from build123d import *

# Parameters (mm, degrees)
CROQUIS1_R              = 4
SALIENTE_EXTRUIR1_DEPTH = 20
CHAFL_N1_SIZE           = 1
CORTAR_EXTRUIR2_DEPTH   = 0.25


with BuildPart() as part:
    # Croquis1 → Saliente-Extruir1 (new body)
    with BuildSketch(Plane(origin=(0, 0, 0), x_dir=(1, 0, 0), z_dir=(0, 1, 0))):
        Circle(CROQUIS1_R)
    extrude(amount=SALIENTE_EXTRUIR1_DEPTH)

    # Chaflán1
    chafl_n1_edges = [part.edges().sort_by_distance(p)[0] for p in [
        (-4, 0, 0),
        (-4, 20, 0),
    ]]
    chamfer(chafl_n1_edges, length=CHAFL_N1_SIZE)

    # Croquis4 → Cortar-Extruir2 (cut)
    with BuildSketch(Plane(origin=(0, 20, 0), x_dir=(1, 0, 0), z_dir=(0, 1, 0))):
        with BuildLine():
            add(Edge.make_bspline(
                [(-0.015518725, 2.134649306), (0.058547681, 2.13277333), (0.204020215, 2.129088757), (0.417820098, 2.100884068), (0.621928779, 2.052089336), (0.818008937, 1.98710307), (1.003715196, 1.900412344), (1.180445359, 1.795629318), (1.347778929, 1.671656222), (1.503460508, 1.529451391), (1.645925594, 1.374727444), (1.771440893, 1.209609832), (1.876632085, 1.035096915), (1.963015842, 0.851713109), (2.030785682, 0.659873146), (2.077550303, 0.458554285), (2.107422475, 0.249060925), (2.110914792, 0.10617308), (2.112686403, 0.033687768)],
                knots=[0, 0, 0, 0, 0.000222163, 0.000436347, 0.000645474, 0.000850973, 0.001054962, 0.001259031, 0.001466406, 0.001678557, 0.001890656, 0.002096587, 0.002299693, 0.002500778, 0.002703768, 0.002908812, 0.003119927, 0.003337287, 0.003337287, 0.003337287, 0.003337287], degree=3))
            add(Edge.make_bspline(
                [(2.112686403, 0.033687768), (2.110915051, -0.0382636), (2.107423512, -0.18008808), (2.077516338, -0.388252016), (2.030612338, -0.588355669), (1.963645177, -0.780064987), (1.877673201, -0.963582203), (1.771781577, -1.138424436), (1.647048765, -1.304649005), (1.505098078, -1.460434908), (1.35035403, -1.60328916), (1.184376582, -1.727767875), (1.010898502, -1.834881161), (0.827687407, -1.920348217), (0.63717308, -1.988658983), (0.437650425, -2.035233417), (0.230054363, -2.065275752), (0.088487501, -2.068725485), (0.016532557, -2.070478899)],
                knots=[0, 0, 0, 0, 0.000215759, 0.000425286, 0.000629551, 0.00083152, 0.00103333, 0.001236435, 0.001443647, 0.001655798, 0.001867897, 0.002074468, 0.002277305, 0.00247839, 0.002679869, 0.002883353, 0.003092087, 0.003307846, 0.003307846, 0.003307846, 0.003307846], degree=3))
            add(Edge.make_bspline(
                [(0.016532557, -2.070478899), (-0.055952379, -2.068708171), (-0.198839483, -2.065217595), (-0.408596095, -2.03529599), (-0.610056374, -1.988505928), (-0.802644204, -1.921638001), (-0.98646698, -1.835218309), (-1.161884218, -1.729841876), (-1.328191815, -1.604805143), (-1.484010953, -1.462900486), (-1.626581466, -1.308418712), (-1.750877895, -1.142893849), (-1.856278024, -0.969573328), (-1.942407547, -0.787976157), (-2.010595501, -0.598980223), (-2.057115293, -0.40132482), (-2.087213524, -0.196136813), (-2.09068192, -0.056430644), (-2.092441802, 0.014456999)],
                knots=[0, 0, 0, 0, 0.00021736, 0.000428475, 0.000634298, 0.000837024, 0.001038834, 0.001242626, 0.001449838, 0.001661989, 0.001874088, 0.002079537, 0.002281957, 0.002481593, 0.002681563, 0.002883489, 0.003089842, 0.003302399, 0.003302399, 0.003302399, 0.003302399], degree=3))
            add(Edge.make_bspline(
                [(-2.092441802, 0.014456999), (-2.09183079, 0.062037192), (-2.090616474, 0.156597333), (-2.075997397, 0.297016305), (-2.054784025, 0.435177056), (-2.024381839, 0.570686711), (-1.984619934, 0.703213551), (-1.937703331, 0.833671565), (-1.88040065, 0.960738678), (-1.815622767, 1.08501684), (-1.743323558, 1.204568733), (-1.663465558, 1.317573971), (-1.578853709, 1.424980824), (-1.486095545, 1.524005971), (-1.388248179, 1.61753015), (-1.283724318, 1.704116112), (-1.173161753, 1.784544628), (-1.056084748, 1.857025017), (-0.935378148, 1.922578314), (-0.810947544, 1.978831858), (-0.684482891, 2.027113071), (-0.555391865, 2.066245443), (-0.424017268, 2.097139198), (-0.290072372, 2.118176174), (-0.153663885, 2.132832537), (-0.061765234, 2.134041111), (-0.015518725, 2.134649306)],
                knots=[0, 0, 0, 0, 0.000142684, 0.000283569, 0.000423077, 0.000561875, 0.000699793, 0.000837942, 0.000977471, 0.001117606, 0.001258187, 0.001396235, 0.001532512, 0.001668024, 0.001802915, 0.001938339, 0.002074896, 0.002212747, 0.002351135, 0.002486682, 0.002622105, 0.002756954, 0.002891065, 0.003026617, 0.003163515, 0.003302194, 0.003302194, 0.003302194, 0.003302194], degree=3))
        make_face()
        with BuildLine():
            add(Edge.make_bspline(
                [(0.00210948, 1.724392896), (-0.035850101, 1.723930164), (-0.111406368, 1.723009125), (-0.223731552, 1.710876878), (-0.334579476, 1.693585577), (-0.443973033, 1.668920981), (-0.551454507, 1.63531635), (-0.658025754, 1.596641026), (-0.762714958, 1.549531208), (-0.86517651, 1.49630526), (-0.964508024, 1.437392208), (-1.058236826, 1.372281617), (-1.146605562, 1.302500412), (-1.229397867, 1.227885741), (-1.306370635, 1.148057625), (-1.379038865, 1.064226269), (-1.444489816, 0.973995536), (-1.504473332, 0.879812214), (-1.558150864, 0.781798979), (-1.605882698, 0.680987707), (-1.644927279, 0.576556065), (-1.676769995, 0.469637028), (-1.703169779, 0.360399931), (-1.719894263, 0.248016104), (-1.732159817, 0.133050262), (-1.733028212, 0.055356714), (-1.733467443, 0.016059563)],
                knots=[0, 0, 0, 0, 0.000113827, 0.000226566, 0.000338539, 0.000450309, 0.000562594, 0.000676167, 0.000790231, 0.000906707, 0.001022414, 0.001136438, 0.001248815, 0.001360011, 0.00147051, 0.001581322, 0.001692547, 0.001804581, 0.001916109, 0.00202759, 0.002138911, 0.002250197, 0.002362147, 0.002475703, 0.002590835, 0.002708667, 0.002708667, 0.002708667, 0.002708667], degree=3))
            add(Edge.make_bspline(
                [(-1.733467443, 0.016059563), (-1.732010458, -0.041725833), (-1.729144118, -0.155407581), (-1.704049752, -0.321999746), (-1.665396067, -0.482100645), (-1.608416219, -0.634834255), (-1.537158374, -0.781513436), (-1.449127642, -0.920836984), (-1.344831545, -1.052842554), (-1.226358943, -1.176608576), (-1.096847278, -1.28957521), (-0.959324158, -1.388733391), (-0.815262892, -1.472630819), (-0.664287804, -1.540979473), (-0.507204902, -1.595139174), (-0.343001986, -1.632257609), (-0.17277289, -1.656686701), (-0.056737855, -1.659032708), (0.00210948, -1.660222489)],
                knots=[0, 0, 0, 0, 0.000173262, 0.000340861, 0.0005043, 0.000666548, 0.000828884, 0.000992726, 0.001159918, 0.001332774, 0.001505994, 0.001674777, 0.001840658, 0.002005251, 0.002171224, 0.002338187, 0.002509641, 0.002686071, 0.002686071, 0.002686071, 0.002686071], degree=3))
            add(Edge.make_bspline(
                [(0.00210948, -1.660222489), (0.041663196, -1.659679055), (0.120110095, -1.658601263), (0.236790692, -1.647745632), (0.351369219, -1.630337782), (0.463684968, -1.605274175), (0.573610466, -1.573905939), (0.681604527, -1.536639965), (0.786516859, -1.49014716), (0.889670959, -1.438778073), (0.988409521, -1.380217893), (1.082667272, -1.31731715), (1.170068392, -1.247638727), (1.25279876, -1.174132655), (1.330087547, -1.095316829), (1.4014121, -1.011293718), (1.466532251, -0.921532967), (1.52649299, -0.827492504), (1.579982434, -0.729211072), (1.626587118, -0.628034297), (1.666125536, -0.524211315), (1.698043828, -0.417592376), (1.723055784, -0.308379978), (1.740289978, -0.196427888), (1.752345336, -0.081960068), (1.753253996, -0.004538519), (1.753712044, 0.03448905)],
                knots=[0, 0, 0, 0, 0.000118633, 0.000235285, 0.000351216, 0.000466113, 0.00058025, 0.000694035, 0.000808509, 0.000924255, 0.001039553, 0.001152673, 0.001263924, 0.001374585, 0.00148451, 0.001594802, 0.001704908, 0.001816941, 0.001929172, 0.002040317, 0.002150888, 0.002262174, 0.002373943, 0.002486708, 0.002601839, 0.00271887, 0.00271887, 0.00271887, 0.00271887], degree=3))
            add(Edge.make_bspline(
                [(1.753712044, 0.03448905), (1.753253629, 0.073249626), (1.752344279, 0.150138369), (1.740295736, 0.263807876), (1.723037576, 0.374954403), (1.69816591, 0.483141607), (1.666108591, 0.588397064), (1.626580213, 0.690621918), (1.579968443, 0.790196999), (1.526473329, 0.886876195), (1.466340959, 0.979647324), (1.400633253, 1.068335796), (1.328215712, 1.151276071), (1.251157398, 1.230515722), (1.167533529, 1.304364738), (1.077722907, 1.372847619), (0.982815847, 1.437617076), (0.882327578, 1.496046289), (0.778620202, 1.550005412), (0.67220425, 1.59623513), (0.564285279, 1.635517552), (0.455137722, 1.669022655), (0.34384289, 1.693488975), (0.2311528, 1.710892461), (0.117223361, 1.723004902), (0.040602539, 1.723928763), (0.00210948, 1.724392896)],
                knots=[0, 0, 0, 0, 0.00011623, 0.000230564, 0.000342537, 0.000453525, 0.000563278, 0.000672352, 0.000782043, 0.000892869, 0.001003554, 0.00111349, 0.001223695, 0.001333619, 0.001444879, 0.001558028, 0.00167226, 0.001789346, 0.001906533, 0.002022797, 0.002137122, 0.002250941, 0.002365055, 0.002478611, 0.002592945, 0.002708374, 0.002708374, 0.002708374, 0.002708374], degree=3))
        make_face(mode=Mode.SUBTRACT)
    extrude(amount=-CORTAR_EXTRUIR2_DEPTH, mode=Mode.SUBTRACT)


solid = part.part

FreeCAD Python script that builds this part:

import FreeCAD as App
import Part
import Sketcher

V = App.Vector


def edges_at(feature, points):
    """Names of the edges that pass closest to the given points."""
    edges = feature.Shape.Edges
    near = lambda p: min(range(len(edges)), key=lambda i: edges[i].distToShape(Part.Vertex(*p))[0])
    return sorted({f"Edge{near(p) + 1}" for p in points})

doc = App.newDocument("Part")
body = doc.addObject("PartDesign::Body", "Body")

sketch1 = body.newObject("Sketcher::SketchObject", "Sketch")
sketch1.AttachmentSupport = (doc.getObject("XZ_Plane"), [""])
sketch1.MapMode = "FlatFace"
sketch1.addGeometry(Part.Circle(V(0, 0, 0), V(0, 0, 1), 4), False)
sketch1.addConstraint([
    Sketcher.Constraint("Coincident", 0, 3, -1, 1),
    Sketcher.Constraint("Diameter", 0, 8.0),
])
pad1 = body.newObject("PartDesign::Pad", "Pad")
pad1.Profile = sketch1
pad1.Length = 20
pad1.Reversed = True
doc.recompute()

chamfer = body.newObject("PartDesign::Chamfer", "Chamfer")
chamfer.Base = (pad1, edges_at(pad1, [(-4, 0, 0), (-4, 20, 0)]))
chamfer.Size = 1

sketch2 = body.newObject("Sketcher::SketchObject", "Sketch001")
sketch2.AttachmentSupport = (doc.getObject("XZ_Plane"), [""])
sketch2.MapMode = "FlatFace"
sketch2.AttachmentOffset = App.Placement(V(0, 0, -20), App.Rotation())
sketch2.addGeometry([
    Part.BSplineCurve([V(-0.015519, -2.134649, 0), V(0.058548, -2.132773, 0), V(0.20402, -2.129089, 0), V(0.41782, -2.100884, 0), V(0.621929, -2.052089, 0), V(0.818009, -1.987103, 0), V(1.003715, -1.900412, 0), V(1.180445, -1.795629, 0), V(1.347779, -1.671656, 0), V(1.503461, -1.529451, 0), V(1.645926, -1.374727, 0), V(1.771441, -1.20961, 0), V(1.876632, -1.035097, 0), V(1.963016, -0.851713, 0), V(2.030786, -0.659873, 0), V(2.07755, -0.458554, 0), V(2.107422, -0.249061, 0), V(2.110915, -0.106173, 0), V(2.112686, -0.033688, 0)], [4, 1, 1, 1, 1, 1, 1, 1, 1, 1, 1, 1, 1, 1, 1, 1, 4], [0, 0.000222163, 0.000436347, 0.000645474, 0.000850973, 0.001054962, 0.001259031, 0.001466406, 0.001678557, 0.001890656, 0.002096587, 0.002299693, 0.002500778, 0.002703768, 0.002908812, 0.003119927, 0.003337287], False, 3, [1, 1, 1, 1, 1, 1, 1, 1, 1, 1, 1, 1, 1, 1, 1, 1, 1, 1, 1], False),
    Part.BSplineCurve([V(-2.092442, -0.014457, 0), V(-2.091831, -0.062037, 0), V(-2.090616, -0.156597, 0), V(-2.075997, -0.297016, 0), V(-2.054784, -0.435177, 0), V(-2.024382, -0.570687, 0), V(-1.98462, -0.703214, 0), V(-1.937703, -0.833672, 0), V(-1.880401, -0.960739, 0), V(-1.815623, -1.085017, 0), V(-1.743324, -1.204569, 0), V(-1.663466, -1.317574, 0), V(-1.578854, -1.424981, 0), V(-1.486096, -1.524006, 0), V(-1.388248, -1.61753, 0), V(-1.283724, -1.704116, 0), V(-1.173162, -1.784545, 0), V(-1.056085, -1.857025, 0), V(-0.935378, -1.922578, 0), V(-0.810948, -1.978832, 0), V(-0.684483, -2.027113, 0), V(-0.555392, -2.066245, 0), V(-0.424017, -2.097139, 0), V(-0.290072, -2.118176, 0), V(-0.153664, -2.132833, 0), V(-0.061765, -2.134041, 0), V(-0.015519, -2.134649, 0)], [4, 1, 1, 1, 1, 1, 1, 1, 1, 1, 1, 1, 1, 1, 1, 1, 1, 1, 1, 1, 1, 1, 1, 1, 4], [0, 0.000142684, 0.000283569, 0.000423077, 0.000561875, 0.000699793, 0.000837942, 0.000977471, 0.001117606, 0.001258187, 0.001396235, 0.001532512, 0.001668024, 0.001802915, 0.001938339, 0.002074896, 0.002212747, 0.002351135, 0.002486682, 0.002622105, 0.002756954, 0.002891065, 0.003026617, 0.003163515, 0.003302194], False, 3, [1, 1, 1, 1, 1, 1, 1, 1, 1, 1, 1, 1, 1, 1, 1, 1, 1, 1, 1, 1, 1, 1, 1, 1, 1, 1, 1], False),
    Part.BSplineCurve([V(0.016533, 2.070479, 0), V(-0.055952, 2.068708, 0), V(-0.198839, 2.065218, 0), V(-0.408596, 2.035296, 0), V(-0.610056, 1.988506, 0), V(-0.802644, 1.921638, 0), V(-0.986467, 1.835218, 0), V(-1.161884, 1.729842, 0), V(-1.328192, 1.604805, 0), V(-1.484011, 1.4629, 0), V(-1.626581, 1.308419, 0), V(-1.750878, 1.142894, 0), V(-1.856278, 0.969573, 0), V(-1.942408, 0.787976, 0), V(-2.010596, 0.59898, 0), V(-2.057115, 0.401325, 0), V(-2.087214, 0.196137, 0), V(-2.090682, 0.056431, 0), V(-2.092442, -0.014457, 0)], [4, 1, 1, 1, 1, 1, 1, 1, 1, 1, 1, 1, 1, 1, 1, 1, 4], [0, 0.00021736, 0.000428475, 0.000634298, 0.000837024, 0.001038834, 0.001242626, 0.001449838, 0.001661989, 0.001874088, 0.002079537, 0.002281957, 0.002481593, 0.002681563, 0.002883489, 0.003089842, 0.003302399], False, 3, [1, 1, 1, 1, 1, 1, 1, 1, 1, 1, 1, 1, 1, 1, 1, 1, 1, 1, 1], False),
    Part.BSplineCurve([V(2.112686, -0.033688, 0), V(2.110915, 0.038264, 0), V(2.107424, 0.180088, 0), V(2.077516, 0.388252, 0), V(2.030612, 0.588356, 0), V(1.963645, 0.780065, 0), V(1.877673, 0.963582, 0), V(1.771782, 1.138424, 0), V(1.647049, 1.304649, 0), V(1.505098, 1.460435, 0), V(1.350354, 1.603289, 0), V(1.184377, 1.727768, 0), V(1.010899, 1.834881, 0), V(0.827687, 1.920348, 0), V(0.637173, 1.988659, 0), V(0.43765, 2.035233, 0), V(0.230054, 2.065276, 0), V(0.088488, 2.068725, 0), V(0.016533, 2.070479, 0)], [4, 1, 1, 1, 1, 1, 1, 1, 1, 1, 1, 1, 1, 1, 1, 1, 4], [0, 0.000215759, 0.000425286, 0.000629551, 0.00083152, 0.00103333, 0.001236435, 0.001443647, 0.001655798, 0.001867897, 0.002074468, 0.002277305, 0.00247839, 0.002679869, 0.002883353, 0.003092087, 0.003307846], False, 3, [1, 1, 1, 1, 1, 1, 1, 1, 1, 1, 1, 1, 1, 1, 1, 1, 1, 1, 1], False),
    Part.BSplineCurve([V(1.753712, -0.034489, 0), V(1.753254, -0.07325, 0), V(1.752344, -0.150138, 0), V(1.740296, -0.263808, 0), V(1.723038, -0.374954, 0), V(1.698166, -0.483142, 0), V(1.666109, -0.588397, 0), V(1.62658, -0.690622, 0), V(1.579968, -0.790197, 0), V(1.526473, -0.886876, 0), V(1.466341, -0.979647, 0), V(1.400633, -1.068336, 0), V(1.328216, -1.151276, 0), V(1.251157, -1.230516, 0), V(1.167534, -1.304365, 0), V(1.077723, -1.372848, 0), V(0.982816, -1.437617, 0), V(0.882328, -1.496046, 0), V(0.77862, -1.550005, 0), V(0.672204, -1.596235, 0), V(0.564285, -1.635518, 0), V(0.455138, -1.669023, 0), V(0.343843, -1.693489, 0), V(0.231153, -1.710892, 0), V(0.117223, -1.723005, 0), V(0.040603, -1.723929, 0), V(0.002109, -1.724393, 0)], [4, 1, 1, 1, 1, 1, 1, 1, 1, 1, 1, 1, 1, 1, 1, 1, 1, 1, 1, 1, 1, 1, 1, 1, 4], [0, 0.00011623, 0.000230564, 0.000342537, 0.000453525, 0.000563278, 0.000672352, 0.000782043, 0.000892869, 0.001003554, 0.00111349, 0.001223695, 0.001333619, 0.001444879, 0.001558028, 0.00167226, 0.001789346, 0.001906533, 0.002022797, 0.002137122, 0.002250941, 0.002365055, 0.002478611, 0.002592945, 0.002708374], False, 3, [1, 1, 1, 1, 1, 1, 1, 1, 1, 1, 1, 1, 1, 1, 1, 1, 1, 1, 1, 1, 1, 1, 1, 1, 1, 1, 1], False),
    Part.BSplineCurve([V(0.002109, 1.660222, 0), V(0.041663, 1.659679, 0), V(0.12011, 1.658601, 0), V(0.236791, 1.647746, 0), V(0.351369, 1.630338, 0), V(0.463685, 1.605274, 0), V(0.57361, 1.573906, 0), V(0.681605, 1.53664, 0), V(0.786517, 1.490147, 0), V(0.889671, 1.438778, 0), V(0.98841, 1.380218, 0), V(1.082667, 1.317317, 0), V(1.170068, 1.247639, 0), V(1.252799, 1.174133, 0), V(1.330088, 1.095317, 0), V(1.401412, 1.011294, 0), V(1.466532, 0.921533, 0), V(1.526493, 0.827493, 0), V(1.579982, 0.729211, 0), V(1.626587, 0.628034, 0), V(1.666126, 0.524211, 0), V(1.698044, 0.417592, 0), V(1.723056, 0.30838, 0), V(1.74029, 0.196428, 0), V(1.752345, 0.08196, 0), V(1.753254, 0.004539, 0), V(1.753712, -0.034489, 0)], [4, 1, 1, 1, 1, 1, 1, 1, 1, 1, 1, 1, 1, 1, 1, 1, 1, 1, 1, 1, 1, 1, 1, 1, 4], [0, 0.000118633, 0.000235285, 0.000351216, 0.000466113, 0.00058025, 0.000694035, 0.000808509, 0.000924255, 0.001039553, 0.001152673, 0.001263924, 0.001374585, 0.00148451, 0.001594802, 0.001704908, 0.001816941, 0.001929172, 0.002040317, 0.002150888, 0.002262174, 0.002373943, 0.002486708, 0.002601839, 0.00271887], False, 3, [1, 1, 1, 1, 1, 1, 1, 1, 1, 1, 1, 1, 1, 1, 1, 1, 1, 1, 1, 1, 1, 1, 1, 1, 1, 1, 1], False),
    Part.BSplineCurve([V(-1.733467, -0.01606, 0), V(-1.73201, 0.041726, 0), V(-1.729144, 0.155408, 0), V(-1.70405, 0.322, 0), V(-1.665396, 0.482101, 0), V(-1.608416, 0.634834, 0), V(-1.537158, 0.781513, 0), V(-1.449128, 0.920837, 0), V(-1.344832, 1.052843, 0), V(-1.226359, 1.176609, 0), V(-1.096847, 1.289575, 0), V(-0.959324, 1.388733, 0), V(-0.815263, 1.472631, 0), V(-0.664288, 1.540979, 0), V(-0.507205, 1.595139, 0), V(-0.343002, 1.632258, 0), V(-0.172773, 1.656687, 0), V(-0.056738, 1.659033, 0), V(0.002109, 1.660222, 0)], [4, 1, 1, 1, 1, 1, 1, 1, 1, 1, 1, 1, 1, 1, 1, 1, 4], [0, 0.000173262, 0.000340861, 0.0005043, 0.000666548, 0.000828884, 0.000992726, 0.001159918, 0.001332774, 0.001505994, 0.001674777, 0.001840658, 0.002005251, 0.002171224, 0.002338187, 0.002509641, 0.002686071], False, 3, [1, 1, 1, 1, 1, 1, 1, 1, 1, 1, 1, 1, 1, 1, 1, 1, 1, 1, 1], False),
    Part.BSplineCurve([V(0.002109, -1.724393, 0), V(-0.03585, -1.72393, 0), V(-0.111406, -1.723009, 0), V(-0.223732, -1.710877, 0), V(-0.334579, -1.693586, 0), V(-0.443973, -1.668921, 0), V(-0.551455, -1.635316, 0), V(-0.658026, -1.596641, 0), V(-0.762715, -1.549531, 0), V(-0.865177, -1.496305, 0), V(-0.964508, -1.437392, 0), V(-1.058237, -1.372282, 0), V(-1.146606, -1.3025, 0), V(-1.229398, -1.227886, 0), V(-1.306371, -1.148058, 0), V(-1.379039, -1.064226, 0), V(-1.44449, -0.973996, 0), V(-1.504473, -0.879812, 0), V(-1.558151, -0.781799, 0), V(-1.605883, -0.680988, 0), V(-1.644927, -0.576556, 0), V(-1.67677, -0.469637, 0), V(-1.70317, -0.3604, 0), V(-1.719894, -0.248016, 0), V(-1.73216, -0.13305, 0), V(-1.733028, -0.055357, 0), V(-1.733467, -0.01606, 0)], [4, 1, 1, 1, 1, 1, 1, 1, 1, 1, 1, 1, 1, 1, 1, 1, 1, 1, 1, 1, 1, 1, 1, 1, 4], [0, 0.000113827, 0.000226566, 0.000338539, 0.000450309, 0.000562594, 0.000676167, 0.000790231, 0.000906707, 0.001022414, 0.001136438, 0.001248815, 0.001360011, 0.00147051, 0.001581322, 0.001692547, 0.001804581, 0.001916109, 0.00202759, 0.002138911, 0.002250197, 0.002362147, 0.002475703, 0.002590835, 0.002708667], False, 3, [1, 1, 1, 1, 1, 1, 1, 1, 1, 1, 1, 1, 1, 1, 1, 1, 1, 1, 1, 1, 1, 1, 1, 1, 1, 1, 1], False),
], False)
sketch2.addConstraint([
    Sketcher.Constraint("Block", 0),
    Sketcher.Constraint("Block", 1),
    Sketcher.Constraint("Block", 2),
    Sketcher.Constraint("Block", 3),
    Sketcher.Constraint("Block", 4),
    Sketcher.Constraint("Block", 5),
    Sketcher.Constraint("Block", 6),
    Sketcher.Constraint("Block", 7),
])
pocket1 = body.newObject("PartDesign::Pocket", "Pocket")
pocket1.Profile = sketch2
pocket1.Length = 0.25
pocket1.Reversed = True

doc.recompute()
